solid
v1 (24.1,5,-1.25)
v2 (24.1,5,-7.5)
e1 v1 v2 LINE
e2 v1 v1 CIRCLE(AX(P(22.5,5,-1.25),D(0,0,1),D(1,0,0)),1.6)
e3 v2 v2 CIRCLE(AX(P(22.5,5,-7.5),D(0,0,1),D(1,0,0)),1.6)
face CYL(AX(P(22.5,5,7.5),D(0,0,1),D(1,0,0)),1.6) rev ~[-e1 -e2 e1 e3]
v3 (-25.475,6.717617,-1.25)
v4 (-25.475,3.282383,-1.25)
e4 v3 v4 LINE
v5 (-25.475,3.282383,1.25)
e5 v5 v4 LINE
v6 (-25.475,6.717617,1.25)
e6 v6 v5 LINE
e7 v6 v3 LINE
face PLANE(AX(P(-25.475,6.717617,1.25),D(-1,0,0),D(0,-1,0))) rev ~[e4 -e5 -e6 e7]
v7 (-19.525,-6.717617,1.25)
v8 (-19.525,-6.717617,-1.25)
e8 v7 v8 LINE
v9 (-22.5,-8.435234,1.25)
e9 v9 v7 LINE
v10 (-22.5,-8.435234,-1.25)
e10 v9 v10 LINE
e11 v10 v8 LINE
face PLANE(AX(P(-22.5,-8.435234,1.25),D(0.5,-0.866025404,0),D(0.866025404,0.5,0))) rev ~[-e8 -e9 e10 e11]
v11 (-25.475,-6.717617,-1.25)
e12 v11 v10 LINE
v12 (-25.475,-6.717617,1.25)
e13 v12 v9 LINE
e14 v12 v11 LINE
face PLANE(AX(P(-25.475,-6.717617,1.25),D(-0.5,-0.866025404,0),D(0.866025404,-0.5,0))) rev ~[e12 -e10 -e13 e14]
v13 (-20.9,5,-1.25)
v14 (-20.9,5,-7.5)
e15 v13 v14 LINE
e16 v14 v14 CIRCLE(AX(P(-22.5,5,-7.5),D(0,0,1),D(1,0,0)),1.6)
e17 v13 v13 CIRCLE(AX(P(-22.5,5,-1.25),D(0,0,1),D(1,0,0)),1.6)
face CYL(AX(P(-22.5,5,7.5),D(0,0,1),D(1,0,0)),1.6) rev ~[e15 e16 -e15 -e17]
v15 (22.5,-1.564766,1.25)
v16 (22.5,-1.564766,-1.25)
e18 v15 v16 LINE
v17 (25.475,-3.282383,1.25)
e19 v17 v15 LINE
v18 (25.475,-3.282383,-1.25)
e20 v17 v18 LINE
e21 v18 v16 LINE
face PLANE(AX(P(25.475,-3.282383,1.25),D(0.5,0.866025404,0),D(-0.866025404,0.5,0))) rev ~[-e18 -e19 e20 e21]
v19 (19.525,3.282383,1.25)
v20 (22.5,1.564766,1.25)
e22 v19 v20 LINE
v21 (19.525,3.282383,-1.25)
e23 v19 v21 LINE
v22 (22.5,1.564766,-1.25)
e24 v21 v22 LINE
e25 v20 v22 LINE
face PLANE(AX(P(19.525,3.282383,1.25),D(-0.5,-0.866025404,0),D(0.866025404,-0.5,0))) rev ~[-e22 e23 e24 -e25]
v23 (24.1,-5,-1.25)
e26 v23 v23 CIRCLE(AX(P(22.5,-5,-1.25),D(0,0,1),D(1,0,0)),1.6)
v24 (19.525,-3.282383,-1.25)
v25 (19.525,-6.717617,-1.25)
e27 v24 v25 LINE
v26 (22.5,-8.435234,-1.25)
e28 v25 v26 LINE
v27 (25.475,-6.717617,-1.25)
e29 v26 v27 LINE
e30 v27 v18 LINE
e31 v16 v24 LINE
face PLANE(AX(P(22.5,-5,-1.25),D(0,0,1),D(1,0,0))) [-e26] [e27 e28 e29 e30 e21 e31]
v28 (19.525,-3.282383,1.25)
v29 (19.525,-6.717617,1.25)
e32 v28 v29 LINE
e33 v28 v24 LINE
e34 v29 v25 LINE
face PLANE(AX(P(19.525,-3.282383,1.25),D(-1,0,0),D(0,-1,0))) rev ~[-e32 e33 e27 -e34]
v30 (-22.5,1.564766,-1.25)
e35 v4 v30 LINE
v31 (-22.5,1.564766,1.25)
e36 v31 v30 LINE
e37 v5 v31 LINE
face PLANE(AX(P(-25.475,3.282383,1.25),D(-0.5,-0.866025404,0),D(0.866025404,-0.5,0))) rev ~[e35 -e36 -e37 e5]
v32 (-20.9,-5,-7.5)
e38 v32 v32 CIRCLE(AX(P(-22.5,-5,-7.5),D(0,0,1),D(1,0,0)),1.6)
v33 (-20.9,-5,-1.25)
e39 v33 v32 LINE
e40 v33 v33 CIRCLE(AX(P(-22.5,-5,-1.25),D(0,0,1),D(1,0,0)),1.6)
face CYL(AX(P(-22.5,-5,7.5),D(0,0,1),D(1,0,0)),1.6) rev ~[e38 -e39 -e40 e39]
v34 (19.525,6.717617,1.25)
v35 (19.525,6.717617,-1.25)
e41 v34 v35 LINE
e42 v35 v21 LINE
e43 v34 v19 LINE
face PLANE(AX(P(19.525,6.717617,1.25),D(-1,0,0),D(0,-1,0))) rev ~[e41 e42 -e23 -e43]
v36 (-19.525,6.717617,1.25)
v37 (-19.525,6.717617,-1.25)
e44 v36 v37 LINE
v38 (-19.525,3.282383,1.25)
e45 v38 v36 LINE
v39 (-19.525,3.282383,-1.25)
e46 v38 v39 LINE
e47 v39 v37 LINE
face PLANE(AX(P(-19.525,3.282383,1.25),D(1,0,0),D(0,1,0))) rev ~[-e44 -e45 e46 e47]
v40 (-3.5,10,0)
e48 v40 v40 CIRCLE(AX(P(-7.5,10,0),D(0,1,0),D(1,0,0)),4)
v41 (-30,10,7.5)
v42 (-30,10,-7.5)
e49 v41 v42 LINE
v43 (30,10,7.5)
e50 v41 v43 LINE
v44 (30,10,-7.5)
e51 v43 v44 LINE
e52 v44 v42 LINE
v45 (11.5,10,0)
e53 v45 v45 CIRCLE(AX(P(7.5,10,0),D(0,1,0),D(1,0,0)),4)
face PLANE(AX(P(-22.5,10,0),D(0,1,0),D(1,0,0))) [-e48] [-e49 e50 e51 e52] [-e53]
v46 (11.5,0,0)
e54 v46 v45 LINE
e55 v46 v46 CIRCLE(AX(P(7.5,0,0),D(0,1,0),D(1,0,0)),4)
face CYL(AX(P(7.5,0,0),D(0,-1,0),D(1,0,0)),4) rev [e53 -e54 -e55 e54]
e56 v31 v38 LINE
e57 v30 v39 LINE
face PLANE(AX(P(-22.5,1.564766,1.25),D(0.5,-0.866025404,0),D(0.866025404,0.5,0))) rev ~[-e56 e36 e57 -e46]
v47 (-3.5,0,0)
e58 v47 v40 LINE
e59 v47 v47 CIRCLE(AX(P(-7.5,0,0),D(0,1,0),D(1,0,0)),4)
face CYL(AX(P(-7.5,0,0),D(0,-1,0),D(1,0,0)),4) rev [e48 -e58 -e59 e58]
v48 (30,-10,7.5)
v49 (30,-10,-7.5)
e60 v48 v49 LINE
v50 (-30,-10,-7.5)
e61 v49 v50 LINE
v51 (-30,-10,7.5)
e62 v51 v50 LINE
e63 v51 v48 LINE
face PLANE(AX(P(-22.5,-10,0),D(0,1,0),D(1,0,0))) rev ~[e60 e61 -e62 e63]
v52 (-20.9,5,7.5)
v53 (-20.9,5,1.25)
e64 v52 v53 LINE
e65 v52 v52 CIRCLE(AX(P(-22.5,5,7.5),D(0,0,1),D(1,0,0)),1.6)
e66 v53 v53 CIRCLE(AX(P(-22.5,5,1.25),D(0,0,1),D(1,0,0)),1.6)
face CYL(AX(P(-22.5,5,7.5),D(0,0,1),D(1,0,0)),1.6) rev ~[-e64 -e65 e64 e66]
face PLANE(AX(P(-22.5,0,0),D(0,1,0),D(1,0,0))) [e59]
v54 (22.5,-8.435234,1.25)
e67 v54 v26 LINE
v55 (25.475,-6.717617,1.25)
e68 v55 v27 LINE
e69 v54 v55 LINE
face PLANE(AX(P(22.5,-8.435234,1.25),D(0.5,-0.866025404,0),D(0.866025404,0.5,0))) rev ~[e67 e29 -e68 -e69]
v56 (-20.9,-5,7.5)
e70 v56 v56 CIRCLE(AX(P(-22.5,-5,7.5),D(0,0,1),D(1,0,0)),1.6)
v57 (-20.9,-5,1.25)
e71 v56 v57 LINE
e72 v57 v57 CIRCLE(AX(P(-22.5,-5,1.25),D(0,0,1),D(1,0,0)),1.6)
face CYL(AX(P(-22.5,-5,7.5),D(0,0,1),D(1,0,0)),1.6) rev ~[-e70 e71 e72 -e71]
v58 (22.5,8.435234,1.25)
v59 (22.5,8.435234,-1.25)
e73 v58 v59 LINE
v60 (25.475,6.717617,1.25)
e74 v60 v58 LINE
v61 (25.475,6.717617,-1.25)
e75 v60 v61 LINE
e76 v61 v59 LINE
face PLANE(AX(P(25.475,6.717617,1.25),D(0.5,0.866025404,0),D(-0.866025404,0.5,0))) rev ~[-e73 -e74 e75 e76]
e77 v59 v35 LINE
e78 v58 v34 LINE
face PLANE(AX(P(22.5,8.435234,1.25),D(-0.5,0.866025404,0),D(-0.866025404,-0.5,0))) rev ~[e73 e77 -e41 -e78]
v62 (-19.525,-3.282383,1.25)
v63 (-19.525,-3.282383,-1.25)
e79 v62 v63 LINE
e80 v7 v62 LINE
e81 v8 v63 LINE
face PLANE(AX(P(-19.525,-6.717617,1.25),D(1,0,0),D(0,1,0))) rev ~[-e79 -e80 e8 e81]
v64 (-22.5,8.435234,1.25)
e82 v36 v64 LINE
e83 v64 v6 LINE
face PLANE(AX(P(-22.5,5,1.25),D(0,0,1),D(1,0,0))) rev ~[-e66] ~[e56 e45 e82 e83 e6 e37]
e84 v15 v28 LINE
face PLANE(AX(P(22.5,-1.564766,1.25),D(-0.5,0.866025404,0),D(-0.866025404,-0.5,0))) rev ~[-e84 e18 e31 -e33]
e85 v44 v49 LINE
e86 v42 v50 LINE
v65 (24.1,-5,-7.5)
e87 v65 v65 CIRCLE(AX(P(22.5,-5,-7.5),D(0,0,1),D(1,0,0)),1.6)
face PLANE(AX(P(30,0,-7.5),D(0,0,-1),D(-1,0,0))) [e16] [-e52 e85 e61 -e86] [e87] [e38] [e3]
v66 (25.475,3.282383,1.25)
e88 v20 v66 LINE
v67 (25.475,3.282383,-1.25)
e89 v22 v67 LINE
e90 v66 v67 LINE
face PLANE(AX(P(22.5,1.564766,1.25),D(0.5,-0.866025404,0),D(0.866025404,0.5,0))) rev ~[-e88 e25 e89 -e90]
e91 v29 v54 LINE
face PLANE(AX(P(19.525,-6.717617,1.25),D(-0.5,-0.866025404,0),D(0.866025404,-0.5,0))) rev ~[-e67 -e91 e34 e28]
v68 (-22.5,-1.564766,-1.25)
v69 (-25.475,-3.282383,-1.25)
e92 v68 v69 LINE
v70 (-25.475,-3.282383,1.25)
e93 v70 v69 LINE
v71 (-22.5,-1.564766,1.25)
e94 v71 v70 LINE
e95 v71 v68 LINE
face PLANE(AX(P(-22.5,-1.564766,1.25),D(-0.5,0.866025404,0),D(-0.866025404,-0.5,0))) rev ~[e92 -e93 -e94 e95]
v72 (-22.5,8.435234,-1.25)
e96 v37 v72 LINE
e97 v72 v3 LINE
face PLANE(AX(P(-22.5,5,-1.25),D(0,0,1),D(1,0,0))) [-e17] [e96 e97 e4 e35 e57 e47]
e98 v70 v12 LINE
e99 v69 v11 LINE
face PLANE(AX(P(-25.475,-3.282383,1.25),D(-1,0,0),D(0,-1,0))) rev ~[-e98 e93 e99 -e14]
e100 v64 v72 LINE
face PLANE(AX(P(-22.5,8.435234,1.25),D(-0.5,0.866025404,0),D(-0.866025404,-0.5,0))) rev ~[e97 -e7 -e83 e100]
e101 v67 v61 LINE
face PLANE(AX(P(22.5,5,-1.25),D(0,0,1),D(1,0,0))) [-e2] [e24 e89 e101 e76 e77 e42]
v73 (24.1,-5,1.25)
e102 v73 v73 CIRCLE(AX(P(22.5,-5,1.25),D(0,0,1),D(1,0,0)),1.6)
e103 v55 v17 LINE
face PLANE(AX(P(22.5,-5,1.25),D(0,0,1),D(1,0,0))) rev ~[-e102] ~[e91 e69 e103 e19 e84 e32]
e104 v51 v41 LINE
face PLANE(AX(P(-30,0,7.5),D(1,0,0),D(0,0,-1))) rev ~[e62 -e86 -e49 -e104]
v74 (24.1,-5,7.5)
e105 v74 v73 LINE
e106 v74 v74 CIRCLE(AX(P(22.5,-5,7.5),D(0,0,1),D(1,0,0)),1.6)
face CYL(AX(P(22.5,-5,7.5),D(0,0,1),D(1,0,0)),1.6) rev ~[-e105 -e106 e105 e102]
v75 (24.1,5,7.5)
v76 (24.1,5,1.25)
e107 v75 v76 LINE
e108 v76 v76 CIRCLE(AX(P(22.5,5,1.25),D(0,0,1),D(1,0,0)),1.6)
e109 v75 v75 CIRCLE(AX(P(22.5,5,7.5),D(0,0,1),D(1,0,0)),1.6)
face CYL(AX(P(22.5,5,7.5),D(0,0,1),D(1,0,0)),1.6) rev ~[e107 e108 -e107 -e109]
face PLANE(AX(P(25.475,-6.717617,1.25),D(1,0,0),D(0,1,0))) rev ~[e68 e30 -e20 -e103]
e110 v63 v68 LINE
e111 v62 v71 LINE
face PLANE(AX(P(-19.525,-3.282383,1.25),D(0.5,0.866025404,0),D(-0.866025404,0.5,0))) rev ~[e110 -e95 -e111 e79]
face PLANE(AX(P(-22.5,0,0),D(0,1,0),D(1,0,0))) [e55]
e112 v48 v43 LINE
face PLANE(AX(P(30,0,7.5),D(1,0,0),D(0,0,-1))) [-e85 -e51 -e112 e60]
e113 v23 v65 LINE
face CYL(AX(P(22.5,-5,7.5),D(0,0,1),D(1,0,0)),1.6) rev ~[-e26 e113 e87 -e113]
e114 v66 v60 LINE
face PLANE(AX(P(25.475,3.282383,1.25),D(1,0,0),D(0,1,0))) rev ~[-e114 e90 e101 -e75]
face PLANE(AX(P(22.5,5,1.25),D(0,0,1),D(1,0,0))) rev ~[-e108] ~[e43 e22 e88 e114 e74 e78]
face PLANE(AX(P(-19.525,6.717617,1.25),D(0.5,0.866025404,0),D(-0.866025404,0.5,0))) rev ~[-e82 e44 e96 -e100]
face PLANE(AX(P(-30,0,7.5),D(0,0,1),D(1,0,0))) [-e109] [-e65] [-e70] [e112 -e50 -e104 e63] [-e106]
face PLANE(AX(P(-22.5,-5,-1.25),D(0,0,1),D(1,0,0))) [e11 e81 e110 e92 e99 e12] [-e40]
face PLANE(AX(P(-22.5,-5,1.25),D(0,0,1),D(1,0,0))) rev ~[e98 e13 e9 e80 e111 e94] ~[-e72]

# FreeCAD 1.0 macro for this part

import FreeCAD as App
import Part
import Sketcher
Q = App.Units.Quantity

doc = App.newDocument("Part")
body = doc.addObject("PartDesign::Body", "Body")

# Sketch on XZ plane
sketch1 = body.newObject("Sketcher::SketchObject", "Sketch")
sketch1.AttachmentSupport = (doc.getObject("XZ_Plane"), [""])
sketch1.MapMode = "FlatFace"
sketch1.addGeometry(Part.LineSegment(App.Vector(-30, -7.5, 0), App.Vector(-30, 7.5, 0)), False)
sketch1.addGeometry(Part.LineSegment(App.Vector(-30, 7.5, 0), App.Vector(30, 7.5, 0)), False)
sketch1.addGeometry(Part.LineSegment(App.Vector(30, 7.5, 0), App.Vector(30, -7.5, 0)), False)
sketch1.addGeometry(Part.LineSegment(App.Vector(30, -7.5, 0), App.Vector(-30, -7.5, 0)), False)
sketch1.addGeometry(Part.Circle(App.Vector(-7.5, 0, 0), App.Vector(0, 0, 1), 4), False)
sketch1.addGeometry(Part.Circle(App.Vector(7.5, 0, 0), App.Vector(0, 0, 1), 4), False)
sketch1.addConstraint(Sketcher.Constraint("Coincident", 0, 2, 1, 1))
sketch1.addConstraint(Sketcher.Constraint("Coincident", 1, 2, 2, 1))
sketch1.addConstraint(Sketcher.Constraint("Coincident", 2, 2, 3, 1))
sketch1.addConstraint(Sketcher.Constraint("Coincident", 3, 2, 0, 1))
sketch1.addConstraint(Sketcher.Constraint("Vertical", 0))
sketch1.addConstraint(Sketcher.Constraint("Horizontal", 1))
sketch1.addConstraint(Sketcher.Constraint("Vertical", 2))
sketch1.addConstraint(Sketcher.Constraint("Horizontal", 3))
sketch1.addConstraint(Sketcher.Constraint("Equal", 4, 5))
sketch1.addConstraint(Sketcher.Constraint("Symmetric", 4, 3, 5, 3, -1, 1))
sketch1.addConstraint(Sketcher.Constraint("Symmetric", 0, 2, 2, 2, -1, 1))
sketch1.addConstraint(Sketcher.Constraint("PointOnObject", 4, 3, -1))
sketch1.addConstraint(Sketcher.Constraint("Diameter", 4, 8.0))
sketch1.addConstraint(Sketcher.Constraint("DistanceX", 1, 1, 1, 2, 60.0))
sketch1.addConstraint(Sketcher.Constraint("DistanceY", 0, 1, 0, 2, 15.0))
sketch1.addConstraint(Sketcher.Constraint("DistanceX", 4, 3, 5, 3, 15.0))
pad1 = body.newObject("PartDesign::Pad", "Pad")
pad1.Profile = sketch1
pad1.Length = 10
pad1.Reversed = True

# Sketch on XZ plane
sketch2 = body.newObject("Sketcher::SketchObject", "Sketch001")
sketch2.AttachmentSupport = (doc.getObject("XZ_Plane"), [""])
sketch2.MapMode = "FlatFace"
sketch2.addGeometry(Part.LineSegment(App.Vector(-30, -7.5, 0), App.Vector(-30, 7.5, 0)), False)
sketch2.addGeometry(Part.LineSegment(App.Vector(-30, 7.5, 0), App.Vector(30, 7.5, 0)), False)
sketch2.addGeometry(Part.LineSegment(App.Vector(30, 7.5, 0), App.Vector(30, -7.5, 0)), False)
sketch2.addGeometry(Part.LineSegment(App.Vector(30, -7.5, 0), App.Vector(-30, -7.5, 0)), False)
sketch2.addConstraint(Sketcher.Constraint("Coincident", 0, 2, 1, 1))
sketch2.addConstraint(Sketcher.Constraint("Coincident", 1, 2, 2, 1))
sketch2.addConstraint(Sketcher.Constraint("Coincident", 2, 2, 3, 1))
sketch2.addConstraint(Sketcher.Constraint("Coincident", 3, 2, 0, 1))
sketch2.addConstraint(Sketcher.Constraint("Vertical", 0))
sketch2.addConstraint(Sketcher.Constraint("Horizontal", 1))
sketch2.addConstraint(Sketcher.Constraint("Vertical", 2))
sketch2.addConstraint(Sketcher.Constraint("Horizontal", 3))
sketch2.addConstraint(Sketcher.Constraint("Symmetric", 0, 2, 2, 2, -1, 1))
sketch2.addConstraint(Sketcher.Constraint("DistanceX", 1, 1, 1, 2, 60.0))
sketch2.addConstraint(Sketcher.Constraint("DistanceY", 0, 1, 0, 2, 15.0))
pad2 = body.newObject("PartDesign::Pad", "Pad001")
pad2.Profile = sketch2
pad2.Length = 10

# Sketch on XY plane
sketch3 = body.newObject("Sketcher::SketchObject", "Sketch002")
sketch3.AttachmentSupport = (doc.getObject("XY_Plane"), [""])
sketch3.MapMode = "FlatFace"
sketch3.AttachmentOffset = App.Placement(App.Vector(0, 0, 7.5), App.Rotation())
sketch3.addGeometry(Part.Circle(App.Vector(-22.5, -5, 0), App.Vector(0, 0, 1), 1.6), False)
sketch3.addGeometry(Part.Circle(App.Vector(-22.5, 5, 0), App.Vector(0, 0, 1), 1.6), False)
sketch3.addGeometry(Part.Circle(App.Vector(22.5, 5, 0), App.Vector(0, 0, 1), 1.6), False)
sketch3.addGeometry(Part.Circle(App.Vector(22.5, -5, 0), App.Vector(0, 0, 1), 1.6), False)
sketch3.addConstraint(Sketcher.Constraint("Equal", 0, 1))
sketch3.addConstraint(Sketcher.Constraint("Equal", 1, 2))
sketch3.addConstraint(Sketcher.Constraint("Equal", 2, 3))
sketch3.addConstraint(Sketcher.Constraint("Symmetric", 0, 3, 2, 3, -1, 1))
sketch3.addConstraint(Sketcher.Constraint("Symmetric", 1, 3, 3, 3, -1, 1))
sketch3.addConstraint(Sketcher.Constraint("Symmetric", 1, 3, 2, 3, -2))
sketch3.addConstraint(Sketcher.Constraint("Diameter", 0, 3.2))
sketch3.addConstraint(Sketcher.Constraint("DistanceY", 0, 3, -1, 1, 5.0))
sketch3.addConstraint(Sketcher.Constraint("DistanceX", 1, 3, 2, 3, 45.0))
pocket1 = body.newObject("PartDesign::Pocket", "Pocket")
pocket1.Profile = sketch3
pocket1.Type = "ThroughAll"

# Sketch on XY plane
sketch4 = body.newObject("Sketcher::SketchObject", "Sketch003")
sketch4.AttachmentSupport = (doc.getObject("XY_Plane"), [""])
sketch4.MapMode = "FlatFace"
sketch4.AttachmentOffset = App.Placement(App.Vector(0, 0, 1.25), App.Rotation())
sketch4.addGeometry(Part.LineSegment(App.Vector(-22.5, 8.435234, 0), App.Vector(-25.475, 6.717617, 0)), False)
sketch4.addGeometry(Part.LineSegment(App.Vector(-25.475, 6.717617, 0), App.Vector(-25.475, 3.282383, 0)), False)
sketch4.addGeometry(Part.LineSegment(App.Vector(-25.475, 3.282383, 0), App.Vector(-22.5, 1.564766, 0)), False)
sketch4.addGeometry(Part.LineSegment(App.Vector(-22.5, 1.564766, 0), App.Vector(-19.525, 3.282383, 0)), False)
sketch4.addGeometry(Part.LineSegment(App.Vector(-19.525, 3.282383, 0), App.Vector(-19.525, 6.717617, 0)), False)
sketch4.addGeometry(Part.LineSegment(App.Vector(-19.525, 6.717617, 0), App.Vector(-22.5, 8.435234, 0)), False)
sketch4.addGeometry(Part.Circle(App.Vector(-22.5, 5, 0), App.Vector(0, 0, 1), 1.6), False)
sketch4.addGeometry(Part.LineSegment(App.Vector(22.5, 8.435234, 0), App.Vector(19.525, 6.717617, 0)), False)
sketch4.addGeometry(Part.LineSegment(App.Vector(19.525, 6.717617, 0), App.Vector(19.525, 3.282383, 0)), False)
sketch4.addGeometry(Part.LineSegment(App.Vector(19.525, 3.282383, 0), App.Vector(22.5, 1.564766, 0)), False)
sketch4.addGeometry(Part.LineSegment(App.Vector(22.5, 1.564766, 0), App.Vector(25.475, 3.282383, 0)), False)
sketch4.addGeometry(Part.LineSegment(App.Vector(25.475, 3.282383, 0), App.Vector(25.475, 6.717617, 0)), False)
sketch4.addGeometry(Part.LineSegment(App.Vector(25.475, 6.717617, 0), App.Vector(22.5, 8.435234, 0)), False)
sketch4.addGeometry(Part.Circle(App.Vector(22.5, 5, 0), App.Vector(0, 0, 1), 1.6), False)
sketch4.addGeometry(Part.LineSegment(App.Vector(-22.5, -8.435234, 0), App.Vector(-19.525, -6.717617, 0)), False)
sketch4.addGeometry(Part.LineSegment(App.Vector(-19.525, -6.717617, 0), App.Vector(-19.525, -3.282383, 0)), False)
sketch4.addGeometry(Part.LineSegment(App.Vector(-19.525, -3.282383, 0), App.Vector(-22.5, -1.564766, 0)), False)
sketch4.addGeometry(Part.LineSegment(App.Vector(-22.5, -1.564766, 0), App.Vector(-25.475, -3.282383, 0)), False)
sketch4.addGeometry(Part.LineSegment(App.Vector(-25.475, -3.282383, 0), App.Vector(-25.475, -6.717617, 0)), False)
sketch4.addGeometry(Part.LineSegment(App.Vector(-25.475, -6.717617, 0), App.Vector(-22.5, -8.435234, 0)), False)
sketch4.addGeometry(Part.Circle(App.Vector(-22.5, -5, 0), App.Vector(0, 0, 1), 1.6), False)
sketch4.addGeometry(Part.LineSegment(App.Vector(22.5, -8.435234, 0), App.Vector(25.475, -6.717617, 0)), False)
sketch4.addGeometry(Part.LineSegment(App.Vector(25.475, -6.717617, 0), App.Vector(25.475, -3.282383, 0)), False)
sketch4.addGeometry(Part.LineSegment(App.Vector(25.475, -3.282383, 0), App.Vector(22.5, -1.564766, 0)), False)
sketch4.addGeometry(Part.LineSegment(App.Vector(22.5, -1.564766, 0), App.Vector(19.525, -3.282383, 0)), False)
sketch4.addGeometry(Part.LineSegment(App.Vector(19.525, -3.282383, 0), App.Vector(19.525, -6.717617, 0)), False)
sketch4.addGeometry(Part.LineSegment(App.Vector(19.525, -6.717617, 0), App.Vector(22.5, -8.435234, 0)), False)
sketch4.addGeometry(Part.Circle(App.Vector(22.5, -5, 0), App.Vector(0, 0, 1), 1.6), False)
sketch4.addConstraint(Sketcher.Constraint("Coincident", 0, 2, 1, 1))
sketch4.addConstraint(Sketcher.Constraint("Coincident", 1, 2, 2, 1))
sketch4.addConstraint(Sketcher.Constraint("Coincident", 2, 2, 3, 1))
sketch4.addConstraint(Sketcher.Constraint("Coincident", 3, 2, 4, 1))
sketch4.addConstraint(Sketcher.Constraint("Coincident", 4, 2, 5, 1))
sketch4.addConstraint(Sketcher.Constraint("Coincident", 5, 2, 0, 1))
sketch4.addConstraint(Sketcher.Constraint("Coincident", 7, 2, 8, 1))
sketch4.addConstraint(Sketcher.Constraint("Coincident", 8, 2, 9, 1))
sketch4.addConstraint(Sketcher.Constraint("Coincident", 9, 2, 10, 1))
sketch4.addConstraint(Sketcher.Constraint("Coincident", 10, 2, 11, 1))
sketch4.addConstraint(Sketcher.Constraint("Coincident", 11, 2, 12, 1))
sketch4.addConstraint(Sketcher.Constraint("Coincident", 12, 2, 7, 1))
sketch4.addConstraint(Sketcher.Constraint("Coincident", 14, 2, 15, 1))
sketch4.addConstraint(Sketcher.Constraint("Coincident", 15, 2, 16, 1))
sketch4.addConstraint(Sketcher.Constraint("Coincident", 16, 2, 17, 1))
sketch4.addConstraint(Sketcher.Constraint("Coincident", 17, 2, 18, 1))
sketch4.addConstraint(Sketcher.Constraint("Coincident", 18, 2, 19, 1))
sketch4.addConstraint(Sketcher.Constraint("Coincident", 19, 2, 14, 1))
sketch4.addConstraint(Sketcher.Constraint("Coincident", 21, 2, 22, 1))
sketch4.addConstraint(Sketcher.Constraint("Coincident", 22, 2, 23, 1))
sketch4.addConstraint(Sketcher.Constraint("Coincident", 23, 2, 24, 1))
sketch4.addConstraint(Sketcher.Constraint("Coincident", 24, 2, 25, 1))
sketch4.addConstraint(Sketcher.Constraint("Coincident", 25, 2, 26, 1))
sketch4.addConstraint(Sketcher.Constraint("Coincident", 26, 2, 21, 1))
sketch4.addConstraint(Sketcher.Constraint("Vertical", 1))
sketch4.addConstraint(Sketcher.Constraint("Vertical", 4))
sketch4.addConstraint(Sketcher.Constraint("Vertical", 8))
sketch4.addConstraint(Sketcher.Constraint("Vertical", 11))
sketch4.addConstraint(Sketcher.Constraint("Vertical", 15))
sketch4.addConstraint(Sketcher.Constraint("Vertical", 18))
sketch4.addConstraint(Sketcher.Constraint("Vertical", 22))
sketch4.addConstraint(Sketcher.Constraint("Vertical", 25))
sketch4.addConstraint(Sketcher.Constraint("Equal", 6, 13))
sketch4.addConstraint(Sketcher.Constraint("Equal", 13, 20))
sketch4.addConstraint(Sketcher.Constraint("Equal", 20, 27))
sketch4.addConstraint(Sketcher.Constraint("Symmetric", 13, 3, 20, 3, -1, 1))
sketch4.addConstraint(Sketcher.Constraint("Symmetric", 6, 3, 27, 3, -1, 1))
sketch4.addConstraint(Sketcher.Constraint("Symmetric", 7, 2, 14, 2, -1, 1))
sketch4.addConstraint(Sketcher.Constraint("Symmetric", 9, 2, 16, 2, -1, 1))
sketch4.addConstraint(Sketcher.Constraint("Symmetric", 10, 2, 17, 2, -1, 1))
sketch4.addConstraint(Sketcher.Constraint("Symmetric", 12, 2, 19, 2, -1, 1))
sketch4.addConstraint(Sketcher.Constraint("Symmetric", 0, 2, 21, 2, -1, 1))
sketch4.addConstraint(Sketcher.Constraint("Symmetric", 2, 2, 23, 2, -1, 1))
sketch4.addConstraint(Sketcher.Constraint("Symmetric", 3, 2, 24, 2, -1, 1))
sketch4.addConstraint(Sketcher.Constraint("Symmetric", 5, 2, 26, 2, -1, 1))
sketch4.addConstraint(Sketcher.Constraint("Symmetric", 6, 3, 13, 3, -2))
sketch4.addConstraint(Sketcher.Constraint("Symmetric", 4, 2, 7, 2, -2))
sketch4.addConstraint(Sketcher.Constraint("Symmetric", 2, 2, 9, 2, -2))
sketch4.addConstraint(Sketcher.Constraint("Symmetric", 1, 2, 10, 2, -2))
sketch4.addConstraint(Sketcher.Constraint("Symmetric", 5, 2, 12, 2, -2))
sketch4.addConstraint(Sketcher.Constraint("Parallel", 0, 3))
sketch4.addConstraint(Sketcher.Constraint("Parallel", 2, 5))
sketch4.addConstraint(Sketcher.Constraint("Parallel", 3, 7))
sketch4.addConstraint(Sketcher.Constraint("Parallel", 5, 9))
sketch4.addConstraint(Sketcher.Constraint("Parallel", 9, 12))
sketch4.addConstraint(Sketcher.Constraint("Parallel", 12, 16))
sketch4.addConstraint(Sketcher.Constraint("Parallel", 16, 19))
sketch4.addConstraint(Sketcher.Constraint("Parallel", 19, 23))
sketch4.addConstraint(Sketcher.Constraint("Parallel", 23, 26))
sketch4.addConstraint(Sketcher.Constraint("Horizontal", 1, 2, 3, 2))
sketch4.addConstraint(Sketcher.Constraint("Horizontal", 0, 2, 4, 2))
sketch4.addConstraint(Sketcher.Constraint("Vertical", 20, 3, 2, 2))
sketch4.addConstraint(Sketcher.Constraint("Diameter", 6, 3.2))
sketch4.addConstraint(Sketcher.Constraint("Angle", 0, Q("-150 deg")))
sketch4.addConstraint(Sketcher.Constraint("DistanceY", -1, 1, 6, 3, 5.0))
sketch4.addConstraint(Sketcher.Constraint("DistanceX", 6, 3, 13, 3, 45.0))
sketch4.addConstraint(Sketcher.Constraint("DistanceY", 14, 2, 3, 2, 10.0))
sketch4.addConstraint(Sketcher.Constraint("DistanceX", 1, 2, 3, 2, 5.95))
sketch4.addConstraint(Sketcher.Constraint("DistanceY", 1, 2, 1, 1, 3.435234))
pocket2 = body.newObject("PartDesign::Pocket", "Pocket001")
pocket2.Profile = sketch4
pocket2.Length = 2.5

doc.recompute()
